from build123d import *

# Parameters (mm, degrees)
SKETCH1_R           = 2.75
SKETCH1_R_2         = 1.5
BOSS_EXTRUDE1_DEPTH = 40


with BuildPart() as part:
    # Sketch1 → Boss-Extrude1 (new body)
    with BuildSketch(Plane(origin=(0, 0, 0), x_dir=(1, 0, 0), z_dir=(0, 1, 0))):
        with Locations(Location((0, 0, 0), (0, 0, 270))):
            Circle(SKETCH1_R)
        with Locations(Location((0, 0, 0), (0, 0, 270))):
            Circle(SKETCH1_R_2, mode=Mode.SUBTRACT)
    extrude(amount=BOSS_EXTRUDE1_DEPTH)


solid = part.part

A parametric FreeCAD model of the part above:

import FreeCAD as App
import Part
import Sketcher

V = App.Vector
Q = App.Units.Quantity

doc = App.newDocument("Part")
body = doc.addObject("PartDesign::Body", "Body")

# Sketch on XZ plane
sketch1 = doc.addObject("Sketcher::SketchObject", "Sketch")
body.addObject(sketch1)
sketch1.AttachmentSupport = (doc.XZ_Plane, [""])
sketch1.MapMode = "FlatFace"
sketch1.addGeometry([
    Part.Circle(V(0, 0, 0), V(0, 0, 1), 2.75),
    Part.Circle(V(0, 0, 0), V(0, 0, 1), 1.5),
], False)
sketch1.addConstraint([
    Sketcher.Constraint("Coincident", 0, 3, -1, 1),
    Sketcher.Constraint("Coincident", 1, 3, -1, 1),
    Sketcher.Constraint("Diameter", 1, Q("3 mm")),
    Sketcher.Constraint("Diameter", 0, Q("5.5 mm")),
])
pad1 = doc.addObject("PartDesign::Pad", "Pad")
body.addObject(pad1)
pad1.Profile = sketch1
pad1.Length = 40
pad1.Reversed = True

doc.recompute()
